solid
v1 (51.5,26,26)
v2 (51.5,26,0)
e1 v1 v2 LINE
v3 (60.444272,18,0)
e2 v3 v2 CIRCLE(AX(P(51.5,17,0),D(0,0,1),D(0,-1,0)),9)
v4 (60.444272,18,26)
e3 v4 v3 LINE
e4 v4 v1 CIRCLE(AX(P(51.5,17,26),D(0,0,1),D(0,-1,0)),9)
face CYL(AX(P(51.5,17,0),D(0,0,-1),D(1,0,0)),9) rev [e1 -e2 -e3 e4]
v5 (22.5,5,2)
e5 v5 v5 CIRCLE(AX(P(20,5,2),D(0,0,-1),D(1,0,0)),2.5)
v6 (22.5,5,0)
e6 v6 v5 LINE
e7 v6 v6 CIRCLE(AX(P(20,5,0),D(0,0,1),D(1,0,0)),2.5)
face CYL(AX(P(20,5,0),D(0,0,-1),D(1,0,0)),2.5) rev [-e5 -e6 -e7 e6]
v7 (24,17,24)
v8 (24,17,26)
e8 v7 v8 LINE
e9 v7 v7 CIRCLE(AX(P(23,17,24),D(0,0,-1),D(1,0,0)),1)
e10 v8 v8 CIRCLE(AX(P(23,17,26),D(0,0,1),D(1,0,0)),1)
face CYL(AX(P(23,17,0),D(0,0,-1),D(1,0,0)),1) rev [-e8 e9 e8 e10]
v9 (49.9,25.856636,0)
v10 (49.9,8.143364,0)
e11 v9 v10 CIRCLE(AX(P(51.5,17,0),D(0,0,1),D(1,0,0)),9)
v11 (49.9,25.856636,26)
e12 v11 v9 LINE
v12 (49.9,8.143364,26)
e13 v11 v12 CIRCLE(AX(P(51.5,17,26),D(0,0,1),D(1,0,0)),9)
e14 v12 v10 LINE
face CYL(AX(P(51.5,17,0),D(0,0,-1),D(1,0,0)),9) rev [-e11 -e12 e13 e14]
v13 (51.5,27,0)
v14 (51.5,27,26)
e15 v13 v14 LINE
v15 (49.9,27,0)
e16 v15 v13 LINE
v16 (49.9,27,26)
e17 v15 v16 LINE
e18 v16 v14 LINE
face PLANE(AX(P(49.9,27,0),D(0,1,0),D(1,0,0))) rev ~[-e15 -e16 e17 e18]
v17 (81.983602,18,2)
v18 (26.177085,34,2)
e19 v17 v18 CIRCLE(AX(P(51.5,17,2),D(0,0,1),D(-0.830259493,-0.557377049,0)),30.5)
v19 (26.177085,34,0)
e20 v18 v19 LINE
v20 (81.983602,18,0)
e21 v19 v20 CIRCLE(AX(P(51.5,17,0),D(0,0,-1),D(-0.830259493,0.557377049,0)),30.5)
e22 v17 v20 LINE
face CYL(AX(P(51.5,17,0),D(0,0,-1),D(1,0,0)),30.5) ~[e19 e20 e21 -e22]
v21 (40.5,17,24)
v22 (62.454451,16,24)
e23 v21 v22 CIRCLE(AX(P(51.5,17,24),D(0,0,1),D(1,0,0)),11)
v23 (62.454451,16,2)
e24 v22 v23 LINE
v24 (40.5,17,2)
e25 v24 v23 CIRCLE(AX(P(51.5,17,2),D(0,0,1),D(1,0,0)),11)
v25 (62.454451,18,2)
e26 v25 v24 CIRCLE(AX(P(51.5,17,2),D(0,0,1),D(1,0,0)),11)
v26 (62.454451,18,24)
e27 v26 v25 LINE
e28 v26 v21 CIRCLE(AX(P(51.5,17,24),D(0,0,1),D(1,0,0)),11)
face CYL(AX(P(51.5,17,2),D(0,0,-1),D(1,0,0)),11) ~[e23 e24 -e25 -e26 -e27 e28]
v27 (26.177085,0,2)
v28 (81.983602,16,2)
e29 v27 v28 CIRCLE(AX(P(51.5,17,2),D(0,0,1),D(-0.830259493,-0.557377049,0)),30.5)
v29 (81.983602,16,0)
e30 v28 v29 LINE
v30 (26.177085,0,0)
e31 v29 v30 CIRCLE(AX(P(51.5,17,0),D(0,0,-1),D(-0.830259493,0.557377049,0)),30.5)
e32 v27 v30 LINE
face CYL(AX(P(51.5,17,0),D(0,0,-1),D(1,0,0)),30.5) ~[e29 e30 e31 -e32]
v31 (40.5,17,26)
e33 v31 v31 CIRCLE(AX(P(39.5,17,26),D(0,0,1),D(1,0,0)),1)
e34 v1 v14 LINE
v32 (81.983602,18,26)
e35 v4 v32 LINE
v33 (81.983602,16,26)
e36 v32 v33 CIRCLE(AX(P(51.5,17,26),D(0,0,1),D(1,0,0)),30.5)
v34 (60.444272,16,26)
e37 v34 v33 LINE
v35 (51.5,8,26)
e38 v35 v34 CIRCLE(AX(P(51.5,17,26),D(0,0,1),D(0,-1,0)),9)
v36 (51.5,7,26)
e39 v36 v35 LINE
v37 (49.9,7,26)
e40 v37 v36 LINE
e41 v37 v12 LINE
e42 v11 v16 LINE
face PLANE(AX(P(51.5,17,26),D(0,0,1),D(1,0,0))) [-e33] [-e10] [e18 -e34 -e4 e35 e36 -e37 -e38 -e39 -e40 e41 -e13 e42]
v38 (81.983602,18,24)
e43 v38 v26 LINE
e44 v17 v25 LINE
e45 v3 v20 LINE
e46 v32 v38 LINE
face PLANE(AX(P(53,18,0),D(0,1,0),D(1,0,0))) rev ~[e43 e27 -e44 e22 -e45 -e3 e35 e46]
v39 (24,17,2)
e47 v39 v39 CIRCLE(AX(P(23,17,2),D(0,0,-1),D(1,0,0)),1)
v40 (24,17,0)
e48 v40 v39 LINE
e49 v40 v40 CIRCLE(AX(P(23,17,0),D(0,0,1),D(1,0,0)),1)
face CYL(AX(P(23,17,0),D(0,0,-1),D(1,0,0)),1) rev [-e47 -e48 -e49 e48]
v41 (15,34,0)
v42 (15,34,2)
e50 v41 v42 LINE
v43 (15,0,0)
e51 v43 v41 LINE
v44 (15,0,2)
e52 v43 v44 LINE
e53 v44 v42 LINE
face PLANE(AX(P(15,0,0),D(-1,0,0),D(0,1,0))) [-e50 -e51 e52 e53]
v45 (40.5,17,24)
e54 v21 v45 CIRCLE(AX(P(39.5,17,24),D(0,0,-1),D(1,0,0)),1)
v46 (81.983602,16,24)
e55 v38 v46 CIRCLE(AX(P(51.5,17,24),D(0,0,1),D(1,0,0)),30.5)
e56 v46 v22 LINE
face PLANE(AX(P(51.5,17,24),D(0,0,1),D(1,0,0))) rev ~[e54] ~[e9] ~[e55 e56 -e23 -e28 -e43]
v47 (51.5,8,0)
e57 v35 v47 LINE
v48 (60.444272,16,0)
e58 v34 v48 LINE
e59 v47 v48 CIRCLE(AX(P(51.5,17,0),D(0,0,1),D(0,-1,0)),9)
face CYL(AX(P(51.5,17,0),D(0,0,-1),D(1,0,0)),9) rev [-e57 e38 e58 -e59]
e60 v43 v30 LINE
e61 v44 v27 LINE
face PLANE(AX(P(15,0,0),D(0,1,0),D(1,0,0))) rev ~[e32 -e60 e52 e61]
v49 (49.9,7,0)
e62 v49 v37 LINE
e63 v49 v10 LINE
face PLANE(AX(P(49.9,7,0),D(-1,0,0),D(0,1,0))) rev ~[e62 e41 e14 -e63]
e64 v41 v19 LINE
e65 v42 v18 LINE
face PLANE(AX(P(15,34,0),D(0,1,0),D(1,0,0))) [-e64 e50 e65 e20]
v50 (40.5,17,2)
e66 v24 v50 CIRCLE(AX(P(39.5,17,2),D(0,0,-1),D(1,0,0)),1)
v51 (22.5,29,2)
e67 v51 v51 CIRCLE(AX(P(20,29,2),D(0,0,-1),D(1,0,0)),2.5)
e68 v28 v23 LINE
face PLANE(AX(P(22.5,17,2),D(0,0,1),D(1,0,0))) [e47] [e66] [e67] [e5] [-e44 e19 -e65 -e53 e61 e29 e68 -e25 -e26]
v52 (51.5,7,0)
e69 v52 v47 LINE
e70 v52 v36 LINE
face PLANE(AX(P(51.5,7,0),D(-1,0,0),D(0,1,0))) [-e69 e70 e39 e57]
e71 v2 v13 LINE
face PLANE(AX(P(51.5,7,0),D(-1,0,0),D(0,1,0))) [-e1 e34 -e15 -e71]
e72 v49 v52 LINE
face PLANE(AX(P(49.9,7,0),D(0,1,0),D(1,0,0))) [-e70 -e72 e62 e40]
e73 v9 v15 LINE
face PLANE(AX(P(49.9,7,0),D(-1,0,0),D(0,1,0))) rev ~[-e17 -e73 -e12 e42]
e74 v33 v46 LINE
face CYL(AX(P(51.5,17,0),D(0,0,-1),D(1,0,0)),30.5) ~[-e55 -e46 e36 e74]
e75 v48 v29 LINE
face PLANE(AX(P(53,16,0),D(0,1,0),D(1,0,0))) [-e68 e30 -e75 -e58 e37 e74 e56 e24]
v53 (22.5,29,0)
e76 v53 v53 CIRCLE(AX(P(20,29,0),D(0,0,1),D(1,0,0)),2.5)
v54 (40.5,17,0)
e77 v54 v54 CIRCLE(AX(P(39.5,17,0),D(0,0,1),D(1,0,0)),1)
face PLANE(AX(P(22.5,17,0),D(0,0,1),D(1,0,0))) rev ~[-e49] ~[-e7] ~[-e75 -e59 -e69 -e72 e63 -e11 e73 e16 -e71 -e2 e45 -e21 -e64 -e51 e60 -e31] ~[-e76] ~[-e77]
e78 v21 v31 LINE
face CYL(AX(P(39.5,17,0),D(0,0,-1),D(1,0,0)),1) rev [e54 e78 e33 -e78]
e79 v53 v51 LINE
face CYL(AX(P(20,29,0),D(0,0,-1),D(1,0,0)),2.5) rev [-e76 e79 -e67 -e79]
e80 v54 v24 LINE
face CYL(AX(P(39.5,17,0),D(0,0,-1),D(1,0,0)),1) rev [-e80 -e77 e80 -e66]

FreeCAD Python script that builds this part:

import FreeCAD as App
import Part
import Sketcher

V = App.Vector

doc = App.newDocument("Part")
body = doc.addObject("PartDesign::Body", "Body")

# Sketch on XY plane
sketch1 = body.newObject("Sketcher::SketchObject", "Sketch")
sketch1.AttachmentSupport = (doc.getObject("XY_Plane"), [""])
sketch1.MapMode = "FlatFace"
sketch1.addGeometry(Part.Circle(V(39.5, 17, 0), V(0, 0, 1), 1), False)
sketch1.addConstraint(Sketcher.Constraint("Diameter", 0, 2.0))
sketch1.addConstraint(Sketcher.Constraint("DistanceY", -1, 1, 0, 3, 17.0))
sketch1.addConstraint(Sketcher.Constraint("DistanceX", -1, 1, 0, 3, 39.5))
pad1 = body.newObject("PartDesign::Pad", "Pad")
pad1.Profile = sketch1
pad1.Length = 26
body2 = doc.addObject("PartDesign::Body", "Body001")
body2.AllowCompound = True

# Sketch on XY plane
sketch2 = body2.newObject("Sketcher::SketchObject", "Sketch001")
sketch2.AttachmentSupport = (doc.getObject("XY_Plane001"), [""])
sketch2.MapMode = "FlatFace"
sketch2.addGeometry(Part.Circle(V(23, 17, 0), V(0, 0, 1), 1), False)
sketch2.addConstraint(Sketcher.Constraint("Diameter", 0, 2.0))
sketch2.addConstraint(Sketcher.Constraint("DistanceX", -1, 1, 0, 3, 23.0))
sketch2.addConstraint(Sketcher.Constraint("DistanceY", -1, 1, 0, 3, 17.0))
pad2 = body2.newObject("PartDesign::Pad", "Pad001")
pad2.Profile = sketch2
pad2.Length = 26
doc.recompute()

boolean = body2.newObject("PartDesign::Boolean", "Boolean")
boolean.Type = "Fuse"
boolean.addObjects([body])
body3 = doc.addObject("PartDesign::Body", "Body002")

# Sketch on XY plane
sketch3 = body3.newObject("Sketcher::SketchObject", "Sketch002")
sketch3.AttachmentSupport = (doc.getObject("XY_Plane002"), [""])
sketch3.MapMode = "FlatFace"
sketch3.addGeometry(Part.LineSegment(V(53, 18, 0), V(53, 16, 0)), False)
sketch3.addGeometry(Part.LineSegment(V(53, 16, 0), V(83, 16, 0)), False)
sketch3.addGeometry(Part.LineSegment(V(83, 16, 0), V(83, 18, 0)), False)
sketch3.addGeometry(Part.LineSegment(V(83, 18, 0), V(53, 18, 0)), False)
sketch3.addConstraint(Sketcher.Constraint("Coincident", 0, 2, 1, 1))
sketch3.addConstraint(Sketcher.Constraint("Coincident", 1, 2, 2, 1))
sketch3.addConstraint(Sketcher.Constraint("Coincident", 2, 2, 3, 1))
sketch3.addConstraint(Sketcher.Constraint("Coincident", 3, 2, 0, 1))
sketch3.addConstraint(Sketcher.Constraint("Vertical", 0))
sketch3.addConstraint(Sketcher.Constraint("Horizontal", 1))
sketch3.addConstraint(Sketcher.Constraint("Vertical", 2))
sketch3.addConstraint(Sketcher.Constraint("Horizontal", 3))
sketch3.addConstraint(Sketcher.Constraint("DistanceX", 1, 1, 1, 2, 30.0))
sketch3.addConstraint(Sketcher.Constraint("DistanceY", 0, 2, 0, 1, 2.0))
sketch3.addConstraint(Sketcher.Constraint("DistanceX", -1, 1, 0, 2, 53.0))
sketch3.addConstraint(Sketcher.Constraint("DistanceY", -1, 1, 0, 2, 16.0))
pad3 = body3.newObject("PartDesign::Pad", "Pad002")
pad3.Profile = sketch3
pad3.Length = 26
body4 = doc.addObject("PartDesign::Body", "Body003")

# Sketch on XY plane
sketch4 = body4.newObject("Sketcher::SketchObject", "Sketch003")
sketch4.AttachmentSupport = (doc.getObject("XY_Plane003"), [""])
sketch4.MapMode = "FlatFace"
sketch4.addGeometry(Part.Circle(V(20, 5, 0), V(0, 0, 1), 2.5), False)
sketch4.addConstraint(Sketcher.Constraint("Diameter", 0, 5.0))
sketch4.addConstraint(Sketcher.Constraint("DistanceX", -1, 1, 0, 3, 20.0))
sketch4.addConstraint(Sketcher.Constraint("DistanceY", -1, 1, 0, 3, 5.0))
pad4 = body4.newObject("PartDesign::Pad", "Pad003")
pad4.Profile = sketch4
pad4.Length = 10
body5 = doc.addObject("PartDesign::Body", "Body004")
body5.AllowCompound = True

# Sketch on XY plane
sketch5 = body5.newObject("Sketcher::SketchObject", "Sketch004")
sketch5.AttachmentSupport = (doc.getObject("XY_Plane004"), [""])
sketch5.MapMode = "FlatFace"
sketch5.addGeometry(Part.Circle(V(20, 29, 0), V(0, 0, 1), 2.5), False)
sketch5.addConstraint(Sketcher.Constraint("Diameter", 0, 5.0))
sketch5.addConstraint(Sketcher.Constraint("DistanceX", -1, 1, 0, 3, 20.0))
sketch5.addConstraint(Sketcher.Constraint("DistanceY", -1, 1, 0, 3, 29.0))
pad5 = body5.newObject("PartDesign::Pad", "Pad004")
pad5.Profile = sketch5
pad5.Length = 10
doc.recompute()

boolean2 = body5.newObject("PartDesign::Boolean", "Boolean001")
boolean2.Type = "Fuse"
boolean2.addObjects([body4])
body6 = doc.addObject("PartDesign::Body", "Body005")

# Sketch on XY plane
sketch6 = body6.newObject("Sketcher::SketchObject", "Sketch005")
sketch6.AttachmentSupport = (doc.getObject("XY_Plane005"), [""])
sketch6.MapMode = "FlatFace"
sketch6.addGeometry(Part.LineSegment(V(15, 34, 0), V(15, 0, 0)), False)
sketch6.addGeometry(Part.LineSegment(V(15, 0, 0), V(30, 0, 0)), False)
sketch6.addGeometry(Part.LineSegment(V(30, 0, 0), V(30, 34, 0)), False)
sketch6.addGeometry(Part.LineSegment(V(30, 34, 0), V(15, 34, 0)), False)
sketch6.addConstraint(Sketcher.Constraint("Coincident", 0, 2, 1, 1))
sketch6.addConstraint(Sketcher.Constraint("Coincident", 1, 2, 2, 1))
sketch6.addConstraint(Sketcher.Constraint("Coincident", 2, 2, 3, 1))
sketch6.addConstraint(Sketcher.Constraint("Coincident", 3, 2, 0, 1))
sketch6.addConstraint(Sketcher.Constraint("Vertical", 0))
sketch6.addConstraint(Sketcher.Constraint("Horizontal", 1))
sketch6.addConstraint(Sketcher.Constraint("Vertical", 2))
sketch6.addConstraint(Sketcher.Constraint("Horizontal", 3))
sketch6.addConstraint(Sketcher.Constraint("PointOnObject", 0, 2, -1))
sketch6.addConstraint(Sketcher.Constraint("DistanceX", 1, 1, 1, 2, 15.0))
sketch6.addConstraint(Sketcher.Constraint("DistanceY", 0, 2, 0, 1, 34.0))
sketch6.addConstraint(Sketcher.Constraint("DistanceX", -1, 1, 0, 2, 15.0))
pad6 = body6.newObject("PartDesign::Pad", "Pad005")
pad6.Profile = sketch6
pad6.Length = 2
doc.recompute()

boolean3 = body6.newObject("PartDesign::Boolean", "Boolean002")
boolean3.Type = "Cut"
boolean3.addObjects([body5])
body7 = doc.addObject("PartDesign::Body", "Body006")

# Sketch on XY plane
sketch7 = body7.newObject("Sketcher::SketchObject", "Sketch006")
sketch7.AttachmentSupport = (doc.getObject("XY_Plane006"), [""])
sketch7.MapMode = "FlatFace"
sketch7.addGeometry(Part.LineSegment(V(49.9, 27, 0), V(49.9, 7, 0)), False)
sketch7.addGeometry(Part.LineSegment(V(49.9, 7, 0), V(51.5, 7, 0)), False)
sketch7.addGeometry(Part.LineSegment(V(51.5, 7, 0), V(51.5, 27, 0)), False)
sketch7.addGeometry(Part.LineSegment(V(51.5, 27, 0), V(49.9, 27, 0)), False)
sketch7.addConstraint(Sketcher.Constraint("Coincident", 0, 2, 1, 1))
sketch7.addConstraint(Sketcher.Constraint("Coincident", 1, 2, 2, 1))
sketch7.addConstraint(Sketcher.Constraint("Coincident", 2, 2, 3, 1))
sketch7.addConstraint(Sketcher.Constraint("Coincident", 3, 2, 0, 1))
sketch7.addConstraint(Sketcher.Constraint("Vertical", 0))
sketch7.addConstraint(Sketcher.Constraint("Horizontal", 1))
sketch7.addConstraint(Sketcher.Constraint("Vertical", 2))
sketch7.addConstraint(Sketcher.Constraint("Horizontal", 3))
sketch7.addConstraint(Sketcher.Constraint("DistanceY", 0, 2, 0, 1, 20.0))
sketch7.addConstraint(Sketcher.Constraint("DistanceX", 1, 1, 1, 2, 1.6))
sketch7.addConstraint(Sketcher.Constraint("DistanceY", -1, 1, 0, 2, 7.0))
sketch7.addConstraint(Sketcher.Constraint("DistanceX", -1, 1, 0, 2, 49.9))
pad7 = body7.newObject("PartDesign::Pad", "Pad006")
pad7.Profile = sketch7
pad7.Length = 26
body8 = doc.addObject("PartDesign::Body", "Body007")

# Sketch on XY plane
sketch8 = body8.newObject("Sketcher::SketchObject", "Sketch007")
sketch8.AttachmentSupport = (doc.getObject("XY_Plane007"), [""])
sketch8.MapMode = "FlatFace"
sketch8.addGeometry(Part.Circle(V(0, 0, 0), V(0, 0, 1), 11), False)
sketch8.addConstraint(Sketcher.Constraint("Coincident", 0, 3, -1, 1))
sketch8.addConstraint(Sketcher.Constraint("Diameter", 0, 22.0))
pad8 = body8.newObject("PartDesign::Pad", "Pad007")
pad8.Profile = sketch8
pad8.Length = 22
body9 = doc.addObject("PartDesign::Body", "Body008")

# Sketch on XY plane
sketch9 = body9.newObject("Sketcher::SketchObject", "Sketch008")
sketch9.AttachmentSupport = (doc.getObject("XY_Plane008"), [""])
sketch9.MapMode = "FlatFace"
sketch9.addGeometry(Part.Circle(V(0, 0, 0), V(0, 0, 1), 30), False)
sketch9.addConstraint(Sketcher.Constraint("Coincident", 0, 3, -1, 1))
sketch9.addConstraint(Sketcher.Constraint("Diameter", 0, 61.0))
pad9 = body9.newObject("PartDesign::Pad", "Pad008")
pad9.Profile = sketch9
pad9.Length = 22
doc.recompute()

boolean4 = body9.newObject("PartDesign::Boolean", "Boolean003")
boolean4.Type = "Cut"
boolean4.addObjects([body8])
body10 = doc.addObject("PartDesign::Body", "Body009")
doc.recompute()

body9.Placement = App.Placement(V(51.5, 17, 2), App.Rotation(V(0, 0, 1), 0))
boolean5 = body10.newObject("PartDesign::Boolean", "Boolean004")
boolean5.Type = "Fuse"
boolean5.addObjects([body9])
body11 = doc.addObject("PartDesign::Body", "Body010")

# Sketch on XY plane
sketch10 = body11.newObject("Sketcher::SketchObject", "Sketch009")
sketch10.AttachmentSupport = (doc.getObject("XY_Plane010"), [""])
sketch10.MapMode = "FlatFace"
sketch10.addGeometry(Part.Circle(V(0, 0, 0), V(0, 0, 1), 9), False)
sketch10.addConstraint(Sketcher.Constraint("Coincident", 0, 3, -1, 1))
sketch10.addConstraint(Sketcher.Constraint("Diameter", 0, 18.0))
pad10 = body11.newObject("PartDesign::Pad", "Pad009")
pad10.Profile = sketch10
pad10.Length = 26
body12 = doc.addObject("PartDesign::Body", "Body011")

# Sketch on XY plane
sketch11 = body12.newObject("Sketcher::SketchObject", "Sketch010")
sketch11.AttachmentSupport = (doc.getObject("XY_Plane011"), [""])
sketch11.MapMode = "FlatFace"
sketch11.addGeometry(Part.Circle(V(0, 0, 0), V(0, 0, 1), 30), False)
sketch11.addConstraint(Sketcher.Constraint("Coincident", 0, 3, -1, 1))
sketch11.addConstraint(Sketcher.Constraint("Diameter", 0, 61.0))
pad11 = body12.newObject("PartDesign::Pad", "Pad010")
pad11.Profile = sketch11
pad11.Length = 26
doc.recompute()

boolean6 = body12.newObject("PartDesign::Boolean", "Boolean005")
boolean6.Type = "Cut"
boolean6.addObjects([body11])
body13 = doc.addObject("PartDesign::Body", "Body012")
doc.recompute()

body12.Placement = App.Placement(V(51.5, 17, 0), App.Rotation(V(0, 0, 1), 0))
boolean7 = body13.newObject("PartDesign::Boolean", "Boolean006")
boolean7.Type = "Fuse"
boolean7.addObjects([body12])
doc.recompute()

boolean8 = body13.newObject("PartDesign::Boolean", "Boolean007")
boolean8.Type = "Cut"
boolean8.addObjects([body10])
doc.recompute()

boolean9 = body13.newObject("PartDesign::Boolean", "Boolean008")
boolean9.Type = "Cut"
boolean9.addObjects([body7])
doc.recompute()

boolean10 = body13.newObject("PartDesign::Boolean", "Boolean009")
boolean10.Type = "Fuse"
boolean10.addObjects([body6])
doc.recompute()

boolean11 = body13.newObject("PartDesign::Boolean", "Boolean010")
boolean11.Type = "Cut"
boolean11.addObjects([body3])
doc.recompute()

boolean12 = body13.newObject("PartDesign::Boolean", "Boolean011")
boolean12.Type = "Cut"
boolean12.addObjects([body2])

doc.recompute()
